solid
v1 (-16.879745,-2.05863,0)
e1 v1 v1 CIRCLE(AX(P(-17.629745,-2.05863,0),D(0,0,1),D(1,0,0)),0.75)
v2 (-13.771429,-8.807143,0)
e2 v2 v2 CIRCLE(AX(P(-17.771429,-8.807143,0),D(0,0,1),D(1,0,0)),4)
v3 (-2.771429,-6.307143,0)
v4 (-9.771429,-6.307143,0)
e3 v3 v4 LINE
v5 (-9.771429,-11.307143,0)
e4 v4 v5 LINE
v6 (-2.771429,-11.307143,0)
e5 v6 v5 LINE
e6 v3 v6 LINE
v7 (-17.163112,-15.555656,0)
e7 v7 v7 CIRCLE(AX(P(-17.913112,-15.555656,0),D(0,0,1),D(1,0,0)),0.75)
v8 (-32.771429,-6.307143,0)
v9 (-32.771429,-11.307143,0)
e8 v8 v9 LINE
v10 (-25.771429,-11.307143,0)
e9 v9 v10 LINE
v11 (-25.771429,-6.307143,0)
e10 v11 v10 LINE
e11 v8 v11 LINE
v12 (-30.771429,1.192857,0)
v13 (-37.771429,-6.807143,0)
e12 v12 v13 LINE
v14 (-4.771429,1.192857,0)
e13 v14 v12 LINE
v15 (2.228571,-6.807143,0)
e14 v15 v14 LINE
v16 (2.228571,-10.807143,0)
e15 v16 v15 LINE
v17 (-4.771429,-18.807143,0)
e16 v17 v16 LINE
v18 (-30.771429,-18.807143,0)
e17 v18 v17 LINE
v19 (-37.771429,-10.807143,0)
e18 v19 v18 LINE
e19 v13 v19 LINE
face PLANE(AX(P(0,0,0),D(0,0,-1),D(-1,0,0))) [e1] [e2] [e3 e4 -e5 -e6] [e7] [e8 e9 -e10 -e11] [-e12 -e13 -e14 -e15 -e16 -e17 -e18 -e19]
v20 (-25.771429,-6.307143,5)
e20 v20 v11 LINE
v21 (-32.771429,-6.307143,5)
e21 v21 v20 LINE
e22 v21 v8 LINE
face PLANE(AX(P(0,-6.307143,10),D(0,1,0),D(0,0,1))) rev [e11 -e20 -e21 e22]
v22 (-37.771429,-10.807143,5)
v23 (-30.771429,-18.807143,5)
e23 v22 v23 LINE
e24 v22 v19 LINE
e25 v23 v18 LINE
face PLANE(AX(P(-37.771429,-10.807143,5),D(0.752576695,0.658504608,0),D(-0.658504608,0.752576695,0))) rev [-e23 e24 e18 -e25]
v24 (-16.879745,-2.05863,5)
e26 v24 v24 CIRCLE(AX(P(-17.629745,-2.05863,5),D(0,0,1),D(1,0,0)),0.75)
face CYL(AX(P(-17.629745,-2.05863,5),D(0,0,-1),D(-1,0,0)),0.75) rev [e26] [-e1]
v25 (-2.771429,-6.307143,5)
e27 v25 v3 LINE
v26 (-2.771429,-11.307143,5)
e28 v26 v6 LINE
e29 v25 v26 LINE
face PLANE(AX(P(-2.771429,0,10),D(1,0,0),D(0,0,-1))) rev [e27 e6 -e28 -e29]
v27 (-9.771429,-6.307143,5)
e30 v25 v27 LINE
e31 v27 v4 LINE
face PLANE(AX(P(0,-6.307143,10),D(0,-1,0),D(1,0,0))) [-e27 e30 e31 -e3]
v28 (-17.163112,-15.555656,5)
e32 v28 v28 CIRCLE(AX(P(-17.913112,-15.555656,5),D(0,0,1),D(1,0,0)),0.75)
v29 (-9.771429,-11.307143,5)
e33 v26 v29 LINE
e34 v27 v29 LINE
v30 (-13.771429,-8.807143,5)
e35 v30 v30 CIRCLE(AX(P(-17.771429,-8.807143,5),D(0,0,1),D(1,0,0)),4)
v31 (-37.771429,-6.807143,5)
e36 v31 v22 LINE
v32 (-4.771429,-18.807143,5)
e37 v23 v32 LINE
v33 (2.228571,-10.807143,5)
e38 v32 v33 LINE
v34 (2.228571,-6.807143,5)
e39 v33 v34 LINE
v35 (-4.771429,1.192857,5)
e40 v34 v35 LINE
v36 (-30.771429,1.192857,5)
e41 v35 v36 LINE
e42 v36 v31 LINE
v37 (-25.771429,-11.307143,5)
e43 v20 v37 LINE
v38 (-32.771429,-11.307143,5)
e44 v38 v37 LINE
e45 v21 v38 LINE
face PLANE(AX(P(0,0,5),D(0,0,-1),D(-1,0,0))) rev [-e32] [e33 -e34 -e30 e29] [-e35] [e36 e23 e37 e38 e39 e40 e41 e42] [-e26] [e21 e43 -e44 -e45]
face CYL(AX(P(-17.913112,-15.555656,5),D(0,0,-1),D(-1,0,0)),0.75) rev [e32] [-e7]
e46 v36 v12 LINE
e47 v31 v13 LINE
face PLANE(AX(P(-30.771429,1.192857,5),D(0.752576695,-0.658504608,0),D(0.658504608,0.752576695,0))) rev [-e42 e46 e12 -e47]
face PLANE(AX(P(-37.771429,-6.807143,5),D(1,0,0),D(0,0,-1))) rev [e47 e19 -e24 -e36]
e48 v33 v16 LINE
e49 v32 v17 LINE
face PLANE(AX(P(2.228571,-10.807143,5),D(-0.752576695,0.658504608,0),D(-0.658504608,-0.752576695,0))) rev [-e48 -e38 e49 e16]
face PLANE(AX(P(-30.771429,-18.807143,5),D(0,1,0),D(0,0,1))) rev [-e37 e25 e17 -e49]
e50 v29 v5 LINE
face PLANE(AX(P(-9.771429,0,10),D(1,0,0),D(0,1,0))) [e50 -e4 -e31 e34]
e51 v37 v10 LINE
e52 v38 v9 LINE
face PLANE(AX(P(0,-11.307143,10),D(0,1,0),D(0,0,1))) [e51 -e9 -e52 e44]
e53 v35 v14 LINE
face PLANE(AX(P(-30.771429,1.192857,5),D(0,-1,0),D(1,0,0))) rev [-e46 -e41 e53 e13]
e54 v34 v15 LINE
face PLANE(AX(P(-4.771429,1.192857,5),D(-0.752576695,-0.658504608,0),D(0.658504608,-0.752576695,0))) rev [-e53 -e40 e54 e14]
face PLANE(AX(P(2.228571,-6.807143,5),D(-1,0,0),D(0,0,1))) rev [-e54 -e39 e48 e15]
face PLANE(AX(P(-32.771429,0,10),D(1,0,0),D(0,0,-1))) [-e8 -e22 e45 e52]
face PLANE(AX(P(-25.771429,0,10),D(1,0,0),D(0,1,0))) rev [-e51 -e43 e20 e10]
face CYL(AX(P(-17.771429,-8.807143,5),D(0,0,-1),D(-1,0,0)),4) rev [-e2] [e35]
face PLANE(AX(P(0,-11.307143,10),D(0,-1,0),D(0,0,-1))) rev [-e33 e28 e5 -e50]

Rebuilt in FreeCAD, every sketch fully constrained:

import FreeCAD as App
import Part
import Sketcher
from FreeCAD import Vector
Q = App.Units.Quantity

doc = App.newDocument("Part")
body = doc.addObject("PartDesign::Body", "Body")

# Sketch on XY plane
sketch1 = body.newObject("Sketcher::SketchObject", "Sketch")
sketch1.AttachmentSupport = (doc.getObject("XY_Plane"), [""])
sketch1.MapMode = "FlatFace"
sketch1.addGeometry(Part.LineSegment(Vector(-30.771429, -18.807143, 0), Vector(-4.771429, -18.807143, 0)), False)
sketch1.addGeometry(Part.LineSegment(Vector(-4.771429, -18.807143, 0), Vector(2.228571, -10.807143, 0)), False)
sketch1.addGeometry(Part.LineSegment(Vector(2.228571, -10.807143, 0), Vector(2.228571, -6.807143, 0)), False)
sketch1.addGeometry(Part.LineSegment(Vector(2.228571, -6.807143, 0), Vector(-4.771429, 1.192857, 0)), False)
sketch1.addGeometry(Part.LineSegment(Vector(-4.771429, 1.192857, 0), Vector(-30.771429, 1.192857, 0)), False)
sketch1.addGeometry(Part.LineSegment(Vector(-30.771429, 1.192857, 0), Vector(-37.771429, -6.807143, 0)), False)
sketch1.addGeometry(Part.LineSegment(Vector(-37.771429, -6.807143, 0), Vector(-37.771429, -10.807143, 0)), False)
sketch1.addGeometry(Part.LineSegment(Vector(-37.771429, -10.807143, 0), Vector(-30.771429, -18.807143, 0)), False)
sketch1.addGeometry(Part.Circle(Vector(-17.913112, -15.555656, 0), Vector(0, 0, 1), 0.75), False)
sketch1.addGeometry(Part.Circle(Vector(-17.771429, -8.807143, 0), Vector(0, 0, 1), 4), False)
sketch1.addGeometry(Part.Circle(Vector(-17.629745, -2.05863, 0), Vector(0, 0, 1), 0.75), False)
sketch1.addConstraint(Sketcher.Constraint("Coincident", 0, 2, 1, 1))
sketch1.addConstraint(Sketcher.Constraint("Coincident", 1, 2, 2, 1))
sketch1.addConstraint(Sketcher.Constraint("Coincident", 2, 2, 3, 1))
sketch1.addConstraint(Sketcher.Constraint("Coincident", 3, 2, 4, 1))
sketch1.addConstraint(Sketcher.Constraint("Coincident", 4, 2, 5, 1))
sketch1.addConstraint(Sketcher.Constraint("Coincident", 5, 2, 6, 1))
sketch1.addConstraint(Sketcher.Constraint("Coincident", 6, 2, 7, 1))
sketch1.addConstraint(Sketcher.Constraint("Coincident", 7, 2, 0, 1))
sketch1.addConstraint(Sketcher.Constraint("Horizontal", 0))
sketch1.addConstraint(Sketcher.Constraint("Vertical", 2))
sketch1.addConstraint(Sketcher.Constraint("Horizontal", 4))
sketch1.addConstraint(Sketcher.Constraint("Vertical", 6))
sketch1.addConstraint(Sketcher.Constraint("Equal", 8, 10))
sketch1.addConstraint(Sketcher.Constraint("Parallel", 1, 5))
sketch1.addConstraint(Sketcher.Constraint("Parallel", 3, 7))
sketch1.addConstraint(Sketcher.Constraint("Horizontal", 2, 2, 5, 2))
sketch1.addConstraint(Sketcher.Constraint("Horizontal", 1, 2, 6, 2))
sketch1.addConstraint(Sketcher.Constraint("Vertical", 0, 2, 3, 2))
sketch1.addConstraint(Sketcher.Constraint("Vertical", 4, 2, 7, 2))
sketch1.addConstraint(Sketcher.Constraint("Diameter", 9, Q("8 mm")))
sketch1.addConstraint(Sketcher.Constraint("Diameter", 8, Q("1.5 mm")))
sketch1.addConstraint(Sketcher.Constraint("DistanceX", 0, 1, 0, 2, Q("26 mm")))
sketch1.addConstraint(Sketcher.Constraint("DistanceY", 2, 1, 2, 2, Q("4 mm")))
sketch1.addConstraint(Sketcher.Constraint("DistanceX", 9, 3, 0, 2, Q("13 mm")))
sketch1.addConstraint(Sketcher.Constraint("DistanceY", 0, 2, 9, 3, Q("10 mm")))
sketch1.addConstraint(Sketcher.Constraint("DistanceX", 0, 2, 1, 2, Q("7 mm")))
sketch1.addConstraint(Sketcher.Constraint("DistanceY", 0, 2, 1, 2, Q("8 mm")))
sketch1.addConstraint(Sketcher.Constraint("DistanceX", 8, 3, -1, 1, Q("17.913112 mm")))
sketch1.addConstraint(Sketcher.Constraint("DistanceX", 9, 3, -1, 1, Q("17.771429 mm")))
sketch1.addConstraint(Sketcher.Constraint("DistanceY", 10, 3, -1, 1, Q("2.05863 mm")))
sketch1.addConstraint(Sketcher.Constraint("DistanceY", 8, 3, -1, 1, Q("15.555656 mm")))
sketch1.addConstraint(Sketcher.Constraint("DistanceY", 9, 3, -1, 1, Q("8.807143 mm")))
sketch1.addConstraint(Sketcher.Constraint("DistanceX", 10, 3, -1, 1, Q("17.629745 mm")))
pad1 = body.newObject("PartDesign::Pad", "Pad")
pad1.Profile = sketch1
pad1.Length = 5

# Sketch on XY plane
sketch2 = body.newObject("Sketcher::SketchObject", "Sketch001")
sketch2.AttachmentSupport = (doc.getObject("XY_Plane"), [""])
sketch2.MapMode = "FlatFace"
sketch2.AttachmentOffset = App.Placement(Vector(0, 0, 5), App.Rotation())
sketch2.addGeometry(Part.LineSegment(Vector(-32.771429, -6.307143, 0), Vector(-32.771429, -11.307143, 0)), False)
sketch2.addGeometry(Part.LineSegment(Vector(-32.771429, -11.307143, 0), Vector(-25.771429, -11.307143, 0)), False)
sketch2.addGeometry(Part.LineSegment(Vector(-25.771429, -11.307143, 0), Vector(-25.771429, -6.307143, 0)), False)
sketch2.addGeometry(Part.LineSegment(Vector(-25.771429, -6.307143, 0), Vector(-32.771429, -6.307143, 0)), False)
sketch2.addGeometry(Part.LineSegment(Vector(-9.771429, -6.307143, 0), Vector(-9.771429, -11.307143, 0)), False)
sketch2.addGeometry(Part.LineSegment(Vector(-9.771429, -11.307143, 0), Vector(-2.771429, -11.307143, 0)), False)
sketch2.addGeometry(Part.LineSegment(Vector(-2.771429, -11.307143, 0), Vector(-2.771429, -6.307143, 0)), False)
sketch2.addGeometry(Part.LineSegment(Vector(-2.771429, -6.307143, 0), Vector(-9.771429, -6.307143, 0)), False)
sketch2.addConstraint(Sketcher.Constraint("Coincident", 0, 2, 1, 1))
sketch2.addConstraint(Sketcher.Constraint("Coincident", 1, 2, 2, 1))
sketch2.addConstraint(Sketcher.Constraint("Coincident", 2, 2, 3, 1))
sketch2.addConstraint(Sketcher.Constraint("Coincident", 3, 2, 0, 1))
sketch2.addConstraint(Sketcher.Constraint("Coincident", 4, 2, 5, 1))
sketch2.addConstraint(Sketcher.Constraint("Coincident", 5, 2, 6, 1))
sketch2.addConstraint(Sketcher.Constraint("Coincident", 6, 2, 7, 1))
sketch2.addConstraint(Sketcher.Constraint("Coincident", 7, 2, 4, 1))
sketch2.addConstraint(Sketcher.Constraint("Vertical", 0))
sketch2.addConstraint(Sketcher.Constraint("Horizontal", 1))
sketch2.addConstraint(Sketcher.Constraint("Vertical", 2))
sketch2.addConstraint(Sketcher.Constraint("Horizontal", 3))
sketch2.addConstraint(Sketcher.Constraint("Vertical", 4))
sketch2.addConstraint(Sketcher.Constraint("Horizontal", 5))
sketch2.addConstraint(Sketcher.Constraint("Vertical", 6))
sketch2.addConstraint(Sketcher.Constraint("Horizontal", 7))
sketch2.addConstraint(Sketcher.Constraint("Horizontal", 1, 2, 4, 2))
sketch2.addConstraint(Sketcher.Constraint("Horizontal", 3, 2, 6, 2))
sketch2.addConstraint(Sketcher.Constraint("Equal", 3, 5))
sketch2.addConstraint(Sketcher.Constraint("DistanceX", 1, 1, 1, 2, Q("7 mm")))
sketch2.addConstraint(Sketcher.Constraint("DistanceY", 0, 2, 0, 1, Q("5 mm")))
sketch2.addConstraint(Sketcher.Constraint("DistanceX", 1, 2, 4, 2, Q("16 mm")))
sketch2.addConstraint(Sketcher.Constraint("DistanceX", 0, 2, -1, 1, Q("32.771429 mm")))
sketch2.addConstraint(Sketcher.Constraint("DistanceY", 0, 2, -1, 1, Q("11.307143 mm")))
pocket1 = body.newObject("PartDesign::Pocket", "Pocket")
pocket1.Profile = sketch2
pocket1.Type = "ThroughAll"
pocket1.Midplane = True

doc.recompute()
